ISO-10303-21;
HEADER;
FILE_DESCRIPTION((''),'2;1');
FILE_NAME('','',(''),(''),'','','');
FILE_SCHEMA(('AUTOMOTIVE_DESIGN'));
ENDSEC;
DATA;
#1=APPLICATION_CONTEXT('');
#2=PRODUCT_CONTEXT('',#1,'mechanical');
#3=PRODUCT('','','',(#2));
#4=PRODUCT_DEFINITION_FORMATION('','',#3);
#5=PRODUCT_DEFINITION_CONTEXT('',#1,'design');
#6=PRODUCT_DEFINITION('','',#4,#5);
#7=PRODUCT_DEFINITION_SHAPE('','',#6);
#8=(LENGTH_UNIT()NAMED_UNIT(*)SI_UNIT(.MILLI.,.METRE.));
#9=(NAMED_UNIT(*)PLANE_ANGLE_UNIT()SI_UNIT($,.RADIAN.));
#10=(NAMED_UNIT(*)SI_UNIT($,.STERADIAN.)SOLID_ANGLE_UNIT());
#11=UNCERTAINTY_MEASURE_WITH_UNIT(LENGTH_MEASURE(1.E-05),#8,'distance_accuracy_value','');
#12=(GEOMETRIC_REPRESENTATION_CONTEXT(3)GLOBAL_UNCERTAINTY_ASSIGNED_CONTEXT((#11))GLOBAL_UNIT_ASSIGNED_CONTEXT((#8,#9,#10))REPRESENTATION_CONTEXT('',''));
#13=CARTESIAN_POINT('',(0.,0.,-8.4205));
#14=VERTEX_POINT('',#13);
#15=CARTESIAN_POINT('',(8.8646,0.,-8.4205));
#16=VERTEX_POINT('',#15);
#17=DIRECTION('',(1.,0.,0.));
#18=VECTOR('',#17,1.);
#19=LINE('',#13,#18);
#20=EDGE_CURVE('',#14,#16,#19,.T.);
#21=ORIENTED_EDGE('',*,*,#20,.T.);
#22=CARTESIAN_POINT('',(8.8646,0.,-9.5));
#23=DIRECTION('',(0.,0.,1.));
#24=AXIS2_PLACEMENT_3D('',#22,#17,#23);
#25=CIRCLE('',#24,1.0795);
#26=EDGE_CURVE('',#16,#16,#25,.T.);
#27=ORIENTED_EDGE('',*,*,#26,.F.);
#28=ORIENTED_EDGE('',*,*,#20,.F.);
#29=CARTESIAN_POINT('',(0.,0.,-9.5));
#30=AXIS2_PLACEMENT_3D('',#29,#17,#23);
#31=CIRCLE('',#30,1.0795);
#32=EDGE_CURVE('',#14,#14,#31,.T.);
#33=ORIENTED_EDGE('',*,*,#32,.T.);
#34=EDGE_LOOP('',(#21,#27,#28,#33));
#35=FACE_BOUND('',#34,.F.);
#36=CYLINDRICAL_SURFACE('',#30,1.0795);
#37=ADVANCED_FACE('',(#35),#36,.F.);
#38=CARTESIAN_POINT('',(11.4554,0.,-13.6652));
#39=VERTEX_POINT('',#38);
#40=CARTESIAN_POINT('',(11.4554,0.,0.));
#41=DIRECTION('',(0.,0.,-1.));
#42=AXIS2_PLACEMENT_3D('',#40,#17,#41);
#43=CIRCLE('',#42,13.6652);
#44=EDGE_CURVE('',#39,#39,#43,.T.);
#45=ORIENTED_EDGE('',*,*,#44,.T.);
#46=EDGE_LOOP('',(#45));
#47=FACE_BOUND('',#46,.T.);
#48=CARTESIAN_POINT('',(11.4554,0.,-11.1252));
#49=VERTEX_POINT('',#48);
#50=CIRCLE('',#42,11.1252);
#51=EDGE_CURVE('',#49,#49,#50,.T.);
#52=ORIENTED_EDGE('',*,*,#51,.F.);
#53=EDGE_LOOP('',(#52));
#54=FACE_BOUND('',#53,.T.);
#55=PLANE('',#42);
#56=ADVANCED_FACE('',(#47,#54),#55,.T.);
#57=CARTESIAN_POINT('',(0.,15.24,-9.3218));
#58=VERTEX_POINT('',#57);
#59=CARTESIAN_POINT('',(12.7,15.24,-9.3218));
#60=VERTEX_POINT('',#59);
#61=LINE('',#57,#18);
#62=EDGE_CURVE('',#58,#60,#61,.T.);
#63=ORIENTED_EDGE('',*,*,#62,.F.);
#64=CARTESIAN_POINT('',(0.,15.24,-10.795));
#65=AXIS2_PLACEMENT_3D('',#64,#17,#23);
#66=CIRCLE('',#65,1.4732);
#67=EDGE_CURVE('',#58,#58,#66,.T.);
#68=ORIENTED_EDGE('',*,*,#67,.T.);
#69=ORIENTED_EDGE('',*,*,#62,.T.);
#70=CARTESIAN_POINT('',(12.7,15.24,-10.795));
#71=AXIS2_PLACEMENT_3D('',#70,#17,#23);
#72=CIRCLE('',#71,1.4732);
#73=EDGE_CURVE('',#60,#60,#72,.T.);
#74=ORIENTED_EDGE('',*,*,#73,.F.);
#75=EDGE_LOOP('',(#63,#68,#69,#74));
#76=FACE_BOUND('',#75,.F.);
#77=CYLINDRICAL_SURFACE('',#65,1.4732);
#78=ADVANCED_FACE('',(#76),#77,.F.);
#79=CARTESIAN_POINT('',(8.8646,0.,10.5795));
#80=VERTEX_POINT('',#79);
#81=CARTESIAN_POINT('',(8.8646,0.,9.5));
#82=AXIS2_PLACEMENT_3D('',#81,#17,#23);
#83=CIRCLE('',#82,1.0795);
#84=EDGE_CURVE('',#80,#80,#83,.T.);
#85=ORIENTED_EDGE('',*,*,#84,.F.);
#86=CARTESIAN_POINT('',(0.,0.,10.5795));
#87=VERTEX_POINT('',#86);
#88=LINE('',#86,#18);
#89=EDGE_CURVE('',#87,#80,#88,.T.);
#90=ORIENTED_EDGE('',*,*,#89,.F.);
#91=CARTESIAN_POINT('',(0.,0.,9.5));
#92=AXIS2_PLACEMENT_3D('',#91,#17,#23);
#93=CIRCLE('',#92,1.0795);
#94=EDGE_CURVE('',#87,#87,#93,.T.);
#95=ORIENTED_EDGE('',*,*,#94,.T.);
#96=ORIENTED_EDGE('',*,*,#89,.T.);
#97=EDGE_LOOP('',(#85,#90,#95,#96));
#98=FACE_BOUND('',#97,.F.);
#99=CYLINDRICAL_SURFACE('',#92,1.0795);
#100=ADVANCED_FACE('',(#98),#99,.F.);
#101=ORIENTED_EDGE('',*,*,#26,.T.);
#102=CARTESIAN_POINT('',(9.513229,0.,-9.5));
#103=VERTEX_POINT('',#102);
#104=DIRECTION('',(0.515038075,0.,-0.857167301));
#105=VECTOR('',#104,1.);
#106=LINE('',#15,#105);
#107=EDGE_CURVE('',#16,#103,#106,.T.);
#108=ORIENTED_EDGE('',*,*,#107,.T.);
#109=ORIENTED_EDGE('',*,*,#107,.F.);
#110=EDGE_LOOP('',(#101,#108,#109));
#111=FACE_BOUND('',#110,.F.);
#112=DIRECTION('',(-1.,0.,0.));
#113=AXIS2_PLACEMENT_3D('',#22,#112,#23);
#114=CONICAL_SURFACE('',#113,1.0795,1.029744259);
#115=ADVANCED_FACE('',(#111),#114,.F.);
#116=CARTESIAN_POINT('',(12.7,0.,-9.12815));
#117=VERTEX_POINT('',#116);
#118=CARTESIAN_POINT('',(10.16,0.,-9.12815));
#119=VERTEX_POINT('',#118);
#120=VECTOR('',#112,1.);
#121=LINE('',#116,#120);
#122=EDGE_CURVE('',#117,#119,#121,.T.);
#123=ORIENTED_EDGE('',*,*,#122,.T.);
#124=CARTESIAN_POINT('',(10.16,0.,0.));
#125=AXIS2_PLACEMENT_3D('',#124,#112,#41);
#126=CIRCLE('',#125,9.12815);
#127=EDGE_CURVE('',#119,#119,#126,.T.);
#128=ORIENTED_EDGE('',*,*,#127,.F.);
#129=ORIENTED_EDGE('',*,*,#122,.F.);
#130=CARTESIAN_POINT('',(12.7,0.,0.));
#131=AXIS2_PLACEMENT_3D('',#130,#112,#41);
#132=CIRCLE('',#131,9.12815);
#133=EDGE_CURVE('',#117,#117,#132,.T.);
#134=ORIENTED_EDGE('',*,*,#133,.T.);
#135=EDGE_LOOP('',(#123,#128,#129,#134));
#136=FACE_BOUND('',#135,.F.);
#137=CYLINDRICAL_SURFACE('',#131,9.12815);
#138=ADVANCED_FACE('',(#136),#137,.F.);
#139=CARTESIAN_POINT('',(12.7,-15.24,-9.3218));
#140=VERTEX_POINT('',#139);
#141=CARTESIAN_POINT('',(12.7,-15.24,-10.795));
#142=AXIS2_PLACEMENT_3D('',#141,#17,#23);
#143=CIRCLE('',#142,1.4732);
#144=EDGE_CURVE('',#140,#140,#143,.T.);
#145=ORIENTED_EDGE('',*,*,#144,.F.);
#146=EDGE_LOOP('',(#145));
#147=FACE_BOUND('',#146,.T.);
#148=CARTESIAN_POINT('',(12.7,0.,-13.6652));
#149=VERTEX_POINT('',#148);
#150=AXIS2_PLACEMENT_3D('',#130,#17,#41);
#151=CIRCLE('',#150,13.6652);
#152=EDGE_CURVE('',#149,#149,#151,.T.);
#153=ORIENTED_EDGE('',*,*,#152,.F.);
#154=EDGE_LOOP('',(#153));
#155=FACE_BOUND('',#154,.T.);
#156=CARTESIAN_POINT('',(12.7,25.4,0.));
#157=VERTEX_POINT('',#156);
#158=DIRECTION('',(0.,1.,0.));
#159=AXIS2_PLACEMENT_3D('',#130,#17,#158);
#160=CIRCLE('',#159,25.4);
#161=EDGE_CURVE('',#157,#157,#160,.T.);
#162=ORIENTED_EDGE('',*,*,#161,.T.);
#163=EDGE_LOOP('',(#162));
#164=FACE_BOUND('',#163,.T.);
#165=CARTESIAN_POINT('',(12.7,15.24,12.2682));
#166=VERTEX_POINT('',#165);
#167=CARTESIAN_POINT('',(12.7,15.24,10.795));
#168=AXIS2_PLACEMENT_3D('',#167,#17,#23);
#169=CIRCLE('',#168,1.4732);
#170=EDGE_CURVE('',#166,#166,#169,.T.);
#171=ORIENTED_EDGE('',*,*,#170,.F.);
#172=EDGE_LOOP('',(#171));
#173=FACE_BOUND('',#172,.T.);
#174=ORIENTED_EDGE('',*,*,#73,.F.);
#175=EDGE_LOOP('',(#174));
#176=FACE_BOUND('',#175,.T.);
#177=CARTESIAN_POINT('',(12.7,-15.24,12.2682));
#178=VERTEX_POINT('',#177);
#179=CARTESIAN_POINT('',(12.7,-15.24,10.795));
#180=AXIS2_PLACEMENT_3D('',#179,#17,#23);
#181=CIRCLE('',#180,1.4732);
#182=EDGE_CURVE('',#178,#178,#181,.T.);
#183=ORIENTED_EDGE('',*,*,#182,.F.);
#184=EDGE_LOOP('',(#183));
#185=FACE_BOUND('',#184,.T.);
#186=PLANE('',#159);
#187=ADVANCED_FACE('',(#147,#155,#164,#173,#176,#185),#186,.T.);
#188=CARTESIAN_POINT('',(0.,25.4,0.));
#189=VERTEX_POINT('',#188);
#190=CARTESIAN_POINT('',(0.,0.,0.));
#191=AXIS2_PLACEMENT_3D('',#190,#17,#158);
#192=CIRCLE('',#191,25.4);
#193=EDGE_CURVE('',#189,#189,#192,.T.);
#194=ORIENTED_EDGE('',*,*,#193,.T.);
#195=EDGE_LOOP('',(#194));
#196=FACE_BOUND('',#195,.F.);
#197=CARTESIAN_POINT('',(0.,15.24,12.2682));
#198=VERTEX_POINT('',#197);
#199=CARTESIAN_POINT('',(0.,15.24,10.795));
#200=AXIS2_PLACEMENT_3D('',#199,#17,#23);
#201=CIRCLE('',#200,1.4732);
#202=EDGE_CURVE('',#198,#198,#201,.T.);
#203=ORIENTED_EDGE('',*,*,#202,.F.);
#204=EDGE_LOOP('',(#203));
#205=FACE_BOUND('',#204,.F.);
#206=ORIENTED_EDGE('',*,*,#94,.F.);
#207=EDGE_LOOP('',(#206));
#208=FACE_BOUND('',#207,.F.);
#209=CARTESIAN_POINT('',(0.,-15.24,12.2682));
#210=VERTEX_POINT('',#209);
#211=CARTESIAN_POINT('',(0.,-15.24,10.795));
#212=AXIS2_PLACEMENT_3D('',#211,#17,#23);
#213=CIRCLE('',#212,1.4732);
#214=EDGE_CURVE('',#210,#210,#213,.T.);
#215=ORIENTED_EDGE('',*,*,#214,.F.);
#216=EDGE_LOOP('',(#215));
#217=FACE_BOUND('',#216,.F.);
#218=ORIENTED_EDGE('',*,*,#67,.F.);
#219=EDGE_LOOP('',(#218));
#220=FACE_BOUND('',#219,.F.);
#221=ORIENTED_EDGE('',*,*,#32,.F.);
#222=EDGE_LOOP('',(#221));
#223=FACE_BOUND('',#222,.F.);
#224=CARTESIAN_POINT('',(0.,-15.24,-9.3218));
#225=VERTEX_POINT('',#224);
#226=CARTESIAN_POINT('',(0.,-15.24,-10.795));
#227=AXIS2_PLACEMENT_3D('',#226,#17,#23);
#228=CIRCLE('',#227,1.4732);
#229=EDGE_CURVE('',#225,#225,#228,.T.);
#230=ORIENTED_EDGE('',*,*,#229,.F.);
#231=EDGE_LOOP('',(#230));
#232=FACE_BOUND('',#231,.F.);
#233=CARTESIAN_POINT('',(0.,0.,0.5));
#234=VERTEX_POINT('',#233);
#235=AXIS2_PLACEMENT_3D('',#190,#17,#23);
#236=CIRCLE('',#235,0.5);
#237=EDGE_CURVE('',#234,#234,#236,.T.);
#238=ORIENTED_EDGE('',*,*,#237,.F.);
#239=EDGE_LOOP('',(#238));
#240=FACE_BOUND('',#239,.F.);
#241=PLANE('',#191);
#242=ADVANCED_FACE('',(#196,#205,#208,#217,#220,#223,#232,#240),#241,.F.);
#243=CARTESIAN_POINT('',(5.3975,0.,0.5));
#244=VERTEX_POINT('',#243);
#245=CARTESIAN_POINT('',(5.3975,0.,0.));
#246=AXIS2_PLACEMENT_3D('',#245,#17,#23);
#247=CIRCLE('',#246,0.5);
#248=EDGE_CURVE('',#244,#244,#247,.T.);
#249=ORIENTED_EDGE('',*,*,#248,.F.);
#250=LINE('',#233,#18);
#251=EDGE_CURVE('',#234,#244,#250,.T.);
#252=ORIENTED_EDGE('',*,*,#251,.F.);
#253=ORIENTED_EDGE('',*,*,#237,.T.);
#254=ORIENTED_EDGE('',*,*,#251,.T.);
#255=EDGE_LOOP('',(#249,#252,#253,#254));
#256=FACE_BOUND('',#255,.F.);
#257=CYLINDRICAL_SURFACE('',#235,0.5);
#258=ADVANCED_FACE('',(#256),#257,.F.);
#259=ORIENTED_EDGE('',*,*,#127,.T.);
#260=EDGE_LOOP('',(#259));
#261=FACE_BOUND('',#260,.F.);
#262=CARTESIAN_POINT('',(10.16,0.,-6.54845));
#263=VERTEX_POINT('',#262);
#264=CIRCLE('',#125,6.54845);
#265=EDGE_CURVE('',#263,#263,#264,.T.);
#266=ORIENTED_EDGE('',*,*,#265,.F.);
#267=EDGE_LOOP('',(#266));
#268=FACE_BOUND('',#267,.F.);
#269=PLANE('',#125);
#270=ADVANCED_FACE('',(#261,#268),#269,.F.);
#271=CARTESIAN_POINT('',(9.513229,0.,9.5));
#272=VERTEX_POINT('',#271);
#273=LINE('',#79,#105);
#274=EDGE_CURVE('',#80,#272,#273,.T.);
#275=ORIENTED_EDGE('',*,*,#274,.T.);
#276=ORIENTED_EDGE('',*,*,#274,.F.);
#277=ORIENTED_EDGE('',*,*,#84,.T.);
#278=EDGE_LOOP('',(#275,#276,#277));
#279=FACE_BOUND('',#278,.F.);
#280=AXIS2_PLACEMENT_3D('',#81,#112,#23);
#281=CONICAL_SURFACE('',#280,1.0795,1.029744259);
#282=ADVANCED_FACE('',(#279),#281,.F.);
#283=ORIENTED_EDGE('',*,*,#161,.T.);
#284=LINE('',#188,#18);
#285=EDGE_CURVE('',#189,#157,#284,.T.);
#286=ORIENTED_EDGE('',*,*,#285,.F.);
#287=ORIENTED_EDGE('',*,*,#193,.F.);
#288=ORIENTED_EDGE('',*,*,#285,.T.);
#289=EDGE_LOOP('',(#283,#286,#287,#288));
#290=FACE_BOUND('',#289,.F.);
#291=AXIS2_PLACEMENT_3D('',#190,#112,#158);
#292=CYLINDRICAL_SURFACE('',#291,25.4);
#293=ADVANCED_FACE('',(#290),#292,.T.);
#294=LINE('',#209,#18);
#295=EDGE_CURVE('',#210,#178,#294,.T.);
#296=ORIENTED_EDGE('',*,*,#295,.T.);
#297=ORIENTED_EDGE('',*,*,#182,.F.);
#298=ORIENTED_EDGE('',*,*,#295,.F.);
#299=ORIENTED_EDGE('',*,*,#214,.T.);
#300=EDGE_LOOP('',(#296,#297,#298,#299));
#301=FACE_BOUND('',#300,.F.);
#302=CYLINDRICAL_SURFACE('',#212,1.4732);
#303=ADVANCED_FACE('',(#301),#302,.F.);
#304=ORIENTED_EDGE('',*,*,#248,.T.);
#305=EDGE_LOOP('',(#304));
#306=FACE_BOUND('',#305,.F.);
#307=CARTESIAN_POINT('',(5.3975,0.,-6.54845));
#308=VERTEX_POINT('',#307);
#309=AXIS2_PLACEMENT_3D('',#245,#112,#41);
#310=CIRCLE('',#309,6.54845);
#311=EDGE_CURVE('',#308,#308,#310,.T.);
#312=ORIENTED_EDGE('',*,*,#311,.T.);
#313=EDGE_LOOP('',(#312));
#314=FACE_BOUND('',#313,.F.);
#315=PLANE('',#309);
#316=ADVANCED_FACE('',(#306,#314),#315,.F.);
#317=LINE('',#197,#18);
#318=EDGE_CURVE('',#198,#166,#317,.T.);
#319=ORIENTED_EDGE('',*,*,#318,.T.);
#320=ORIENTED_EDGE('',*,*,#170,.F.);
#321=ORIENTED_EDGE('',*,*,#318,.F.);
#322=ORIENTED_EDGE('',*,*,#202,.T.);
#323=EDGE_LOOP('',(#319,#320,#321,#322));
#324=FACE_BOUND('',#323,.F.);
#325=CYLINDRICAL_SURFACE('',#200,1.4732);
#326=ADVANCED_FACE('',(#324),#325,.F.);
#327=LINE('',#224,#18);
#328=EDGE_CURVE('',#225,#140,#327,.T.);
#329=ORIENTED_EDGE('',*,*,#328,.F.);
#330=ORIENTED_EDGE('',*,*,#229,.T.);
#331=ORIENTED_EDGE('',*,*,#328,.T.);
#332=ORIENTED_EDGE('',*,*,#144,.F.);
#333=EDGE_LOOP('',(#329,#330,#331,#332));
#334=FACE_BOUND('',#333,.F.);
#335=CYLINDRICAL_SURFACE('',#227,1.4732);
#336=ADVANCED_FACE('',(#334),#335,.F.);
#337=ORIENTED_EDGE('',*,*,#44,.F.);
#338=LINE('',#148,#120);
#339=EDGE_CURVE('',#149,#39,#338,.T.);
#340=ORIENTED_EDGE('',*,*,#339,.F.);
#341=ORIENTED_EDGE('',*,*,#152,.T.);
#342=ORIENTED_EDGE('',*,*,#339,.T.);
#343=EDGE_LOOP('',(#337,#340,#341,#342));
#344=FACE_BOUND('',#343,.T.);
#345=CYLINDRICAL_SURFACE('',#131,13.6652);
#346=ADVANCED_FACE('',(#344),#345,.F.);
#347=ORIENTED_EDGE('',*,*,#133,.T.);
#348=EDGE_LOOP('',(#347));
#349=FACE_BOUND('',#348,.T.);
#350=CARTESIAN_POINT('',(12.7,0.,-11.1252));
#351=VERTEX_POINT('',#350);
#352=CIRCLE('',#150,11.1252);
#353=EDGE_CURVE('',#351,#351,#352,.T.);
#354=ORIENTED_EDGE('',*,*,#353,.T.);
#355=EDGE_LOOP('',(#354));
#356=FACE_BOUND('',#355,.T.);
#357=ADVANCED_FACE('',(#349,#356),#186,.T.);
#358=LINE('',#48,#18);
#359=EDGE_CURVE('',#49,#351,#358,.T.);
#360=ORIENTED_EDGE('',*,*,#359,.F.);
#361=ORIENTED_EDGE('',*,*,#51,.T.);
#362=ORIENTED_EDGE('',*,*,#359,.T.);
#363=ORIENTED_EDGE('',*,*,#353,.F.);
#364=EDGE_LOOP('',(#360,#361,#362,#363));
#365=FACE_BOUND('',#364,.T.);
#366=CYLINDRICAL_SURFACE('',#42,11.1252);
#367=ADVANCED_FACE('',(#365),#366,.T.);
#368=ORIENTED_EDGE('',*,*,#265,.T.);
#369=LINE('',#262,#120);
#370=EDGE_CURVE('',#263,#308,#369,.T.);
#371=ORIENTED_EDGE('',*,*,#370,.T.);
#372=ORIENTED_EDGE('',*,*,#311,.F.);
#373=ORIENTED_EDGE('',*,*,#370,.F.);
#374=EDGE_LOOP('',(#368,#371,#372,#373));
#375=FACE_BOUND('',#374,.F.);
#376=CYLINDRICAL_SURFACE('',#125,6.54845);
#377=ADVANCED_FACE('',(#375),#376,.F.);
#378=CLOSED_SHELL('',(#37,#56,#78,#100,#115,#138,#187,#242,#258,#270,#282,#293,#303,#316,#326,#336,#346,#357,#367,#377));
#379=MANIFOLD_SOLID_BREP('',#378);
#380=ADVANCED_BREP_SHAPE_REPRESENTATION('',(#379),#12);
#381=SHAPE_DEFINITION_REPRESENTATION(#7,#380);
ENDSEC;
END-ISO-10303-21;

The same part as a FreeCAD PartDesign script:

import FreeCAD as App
import Part
import Sketcher
Q = App.Units.Quantity


def add_polygon(sketch, points):
    """Adds a closed chain of lines whose ends are joined by coincident constraints."""
    first, n = sketch.GeometryCount, len(points)
    for a, b in zip(points, points[1:] + points[:1]):
        sketch.addGeometry(Part.LineSegment(App.Vector(*a, 0), App.Vector(*b, 0)), False)
    for i in range(n):
        sketch.addConstraint(Sketcher.Constraint("Coincident", first + i, 2, first + (i + 1) % n, 1))

doc = App.newDocument("Part")
body = doc.addObject("PartDesign::Body", "Body")

# Sketch on YZ plane
sketch1 = body.newObject("Sketcher::SketchObject", "Sketch")
sketch1.AttachmentSupport = (doc.getObject("YZ_Plane"), [""])
sketch1.MapMode = "FlatFace"
sketch1.addGeometry(Part.Circle(App.Vector(0, 0, 0), App.Vector(0, 0, 1), 25), False)
sketch1.addConstraint(Sketcher.Constraint("Coincident", 0, 3, -1, 1))
sketch1.addConstraint(Sketcher.Constraint("Diameter", 0, Q("2 in")))
pad1 = body.newObject("PartDesign::Pad", "Pad")
pad1.Profile = sketch1
pad1.Length = Q("0.5 in")

# Sketch on YZ plane
sketch2 = body.newObject("Sketcher::SketchObject", "Sketch001")
sketch2.AttachmentSupport = (doc.getObject("YZ_Plane"), [""])
sketch2.MapMode = "FlatFace"
sketch2.AttachmentOffset = App.Placement(App.Vector(0, 0, 0.5 * 25.4), App.Rotation())
sketch2.addGeometry(Part.Circle(App.Vector(0, 0, 0), App.Vector(0, 0, 1), 9), False)
sketch2.addConstraint(Sketcher.Constraint("Coincident", 0, 3, -1, 1))
sketch2.addConstraint(Sketcher.Constraint("Diameter", 0, Q("0.718752 in")))
doc.recompute()
hole = body.newObject("PartDesign::Hole", "Hole")
hole.Profile = sketch2
hole.ThreadType = "None"
hole.Diameter = Q("0.718752 in")
hole.DepthType = "Dimension"
hole.Depth = Q("0.1 in")
hole.DrillPoint = "Flat"

# Sketch on YZ plane
sketch3 = body.newObject("Sketcher::SketchObject", "Sketch002")
sketch3.AttachmentSupport = (doc.getObject("YZ_Plane"), [""])
sketch3.MapMode = "FlatFace"
sketch3.AttachmentOffset = App.Placement(App.Vector(0, 0, 0.4 * 25.4), App.Rotation())
sketch3.addGeometry(Part.Circle(App.Vector(0, 0, 0), App.Vector(0, 0, 1), 7), False)
sketch3.addConstraint(Sketcher.Constraint("Coincident", 0, 3, -1, 1))
sketch3.addConstraint(Sketcher.Constraint("Diameter", 0, Q("0.5156299 in")))
doc.recompute()
hole2 = body.newObject("PartDesign::Hole", "Hole001")
hole2.Profile = sketch3
hole2.ThreadType = "None"
hole2.Diameter = Q("0.515626 in")
hole2.DepthType = "Dimension"
hole2.Depth = Q("0.1875 in")
hole2.DrillPoint = "Flat"

# Sketch on YZ plane
sketch4 = body.newObject("Sketcher::SketchObject", "Sketch003")
sketch4.AttachmentSupport = (doc.getObject("YZ_Plane"), [""])
sketch4.MapMode = "FlatFace"
sketch4.addGeometry(Part.Circle(App.Vector(15.2, 10.8, 0), App.Vector(0, 0, 1), 1.5), False)
sketch4.addGeometry(Part.Circle(App.Vector(-15.2, 10.8, 0), App.Vector(0, 0, 1), 1.5), False)
sketch4.addGeometry(Part.Circle(App.Vector(-15.2, -10.8, 0), App.Vector(0, 0, 1), 1.5), False)
sketch4.addGeometry(Part.Circle(App.Vector(15.2, -10.8, 0), App.Vector(0, 0, 1), 1.5), False)
sketch4.addConstraint(Sketcher.Constraint("Equal", 0, 1))
sketch4.addConstraint(Sketcher.Constraint("Equal", 1, 2))
sketch4.addConstraint(Sketcher.Constraint("Equal", 2, 3))
sketch4.addConstraint(Sketcher.Constraint("Symmetric", 0, 3, 2, 3, -1, 1))
sketch4.addConstraint(Sketcher.Constraint("Symmetric", 1, 3, 3, 3, -1, 1))
sketch4.addConstraint(Sketcher.Constraint("Symmetric", 0, 3, 1, 3, -2))
sketch4.addConstraint(Sketcher.Constraint("Diameter", 0, Q("0.116 in")))
sketch4.addConstraint(Sketcher.Constraint("DistanceX", -1, 1, 0, 3, Q("0.6 in")))
sketch4.addConstraint(Sketcher.Constraint("DistanceY", 2, 3, 1, 3, Q("0.85 in")))
doc.recompute()
hole3 = body.newObject("PartDesign::Hole", "Hole002")
hole3.Profile = sketch4
hole3.ThreadType = "None"
hole3.Diameter = Q("0.116 in")
hole3.DepthType = "ThroughAll"
hole3.Reversed = True

# Sketch on YZ plane
sketch5 = body.newObject("Sketcher::SketchObject", "Sketch004")
sketch5.AttachmentSupport = (doc.getObject("YZ_Plane"), [""])
sketch5.MapMode = "FlatFace"
sketch5.addGeometry(Part.Circle(App.Vector(0, 0, 0), App.Vector(0, 0, 1), 0.5), False)
sketch5.addConstraint(Sketcher.Constraint("Coincident", 0, 3, -1, 1))
sketch5.addConstraint(Sketcher.Constraint("Diameter", 0, Q("1 mm")))
doc.recompute()
hole4 = body.newObject("PartDesign::Hole", "Hole003")
hole4.Profile = sketch5
hole4.ThreadType = "None"
hole4.Diameter = 1
hole4.DepthType = "ThroughAll"
hole4.Reversed = True

# Sketch on XZ plane
sketch6 = body.newObject("Sketcher::SketchObject", "Sketch005")
sketch6.AttachmentSupport = (doc.getObject("XZ_Plane"), [""])
sketch6.MapMode = "FlatFace"
add_polygon(sketch6, [(11.5, -13.7), (11.5, -11.1), (12.7, -11.1), (12.7, -13.7)])  # lines 0-3
sketch6.addConstraint(Sketcher.Constraint("Vertical", 0))
sketch6.addConstraint(Sketcher.Constraint("Horizontal", 1))
sketch6.addConstraint(Sketcher.Constraint("Vertical", 2))
sketch6.addConstraint(Sketcher.Constraint("Horizontal", 3))
sketch6.addConstraint(Sketcher.Constraint("DistanceY", 0, 1, 0, 2, Q("0.1 in")))
sketch6.addConstraint(Sketcher.Constraint("DistanceX", 1, 1, 1, 2, Q("0.049 in")))
sketch6.addConstraint(Sketcher.Constraint("DistanceY", 0, 2, -1, 1, Q("0.438 in")))
sketch6.addConstraint(Sketcher.Constraint("DistanceX", -1, 1, 1, 2, Q("0.5 in")))
groove = body.newObject("PartDesign::Groove", "Groove")
groove.Profile = sketch6
groove.ReferenceAxis = (sketch6, ["H_Axis"])
groove.Angle = 360

# Sketch on YZ plane
sketch7 = body.newObject("Sketcher::SketchObject", "Sketch006")
sketch7.AttachmentSupport = (doc.getObject("YZ_Plane"), [""])
sketch7.MapMode = "FlatFace"
sketch7.addGeometry(Part.Circle(App.Vector(0, 9.5, 0), App.Vector(0, 0, 1), 1.1), False)
sketch7.addGeometry(Part.Circle(App.Vector(0, -9.5, 0), App.Vector(0, 0, 1), 1.1), False)
sketch7.addConstraint(Sketcher.Constraint("Equal", 0, 1))
sketch7.addConstraint(Sketcher.Constraint("Symmetric", 0, 3, 1, 3, -1, 1))
sketch7.addConstraint(Sketcher.Constraint("PointOnObject", 0, 3, -2))
sketch7.addConstraint(Sketcher.Constraint("Diameter", 0, Q("0.085 in")))
sketch7.addConstraint(Sketcher.Constraint("DistanceY", -1, 1, 0, 3, Q("9.5 mm")))
doc.recompute()
hole5 = body.newObject("PartDesign::Hole", "Hole004")
hole5.Profile = sketch7
hole5.ThreadType = "None"
hole5.Diameter = Q("0.085 in")
hole5.DepthType = "Dimension"
hole5.Depth = Q("0.349 in")
hole5.DrillPoint = "Angled"
hole5.DrillPointAngle = 118
hole5.Reversed = True

doc.recompute()
